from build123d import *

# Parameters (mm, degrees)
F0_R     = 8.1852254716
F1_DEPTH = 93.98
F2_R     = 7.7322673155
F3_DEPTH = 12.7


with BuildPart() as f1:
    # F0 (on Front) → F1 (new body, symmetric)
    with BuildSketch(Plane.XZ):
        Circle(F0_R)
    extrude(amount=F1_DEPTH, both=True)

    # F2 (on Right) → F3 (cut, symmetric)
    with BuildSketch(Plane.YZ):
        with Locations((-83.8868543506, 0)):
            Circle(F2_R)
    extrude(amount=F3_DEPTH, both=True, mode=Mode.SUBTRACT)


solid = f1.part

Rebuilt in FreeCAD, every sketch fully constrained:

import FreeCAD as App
import Part
import Sketcher

V = App.Vector
Q = App.Units.Quantity

doc = App.newDocument("Part")
body = doc.addObject("PartDesign::Body", "Body")

# Sketch on XZ plane
sketch1 = doc.addObject("Sketcher::SketchObject", "Sketch")
body.addObject(sketch1)
sketch1.AttachmentSupport = (doc.XZ_Plane, [""])
sketch1.MapMode = "FlatFace"
sketch1.addGeometry(Part.Circle(V(0, 0, 0), V(0, 0, 1), 8.185225), False)
sketch1.addConstraint([
    Sketcher.Constraint("Coincident", 0, 3, -1, 1),
    Sketcher.Constraint("Diameter", 0, Q("16.370451 mm")),
])
pad1 = doc.addObject("PartDesign::Pad", "Pad")
body.addObject(pad1)
pad1.Profile = sketch1
pad1.Length = Q("7.4 in")
pad1.Midplane = True

# Sketch on YZ plane
sketch2 = doc.addObject("Sketcher::SketchObject", "Sketch001")
body.addObject(sketch2)
sketch2.AttachmentSupport = (doc.YZ_Plane, [""])
sketch2.MapMode = "FlatFace"
sketch2.addGeometry(Part.Circle(V(-83.886854, 0, 0), V(0, 0, 1), 7.732267), False)
sketch2.addConstraint([
    Sketcher.Constraint("PointOnObject", 0, 3, -1),
    Sketcher.Constraint("Diameter", 0, Q("15.464535 mm")),
    Sketcher.Constraint("DistanceX", 0, 3, -1, 1, Q("83.886854 mm")),
])
pocket1 = doc.addObject("PartDesign::Pocket", "Pocket")
body.addObject(pocket1)
pocket1.Profile = sketch2
pocket1.Length = Q("1 in")
pocket1.Midplane = True

doc.recompute()
